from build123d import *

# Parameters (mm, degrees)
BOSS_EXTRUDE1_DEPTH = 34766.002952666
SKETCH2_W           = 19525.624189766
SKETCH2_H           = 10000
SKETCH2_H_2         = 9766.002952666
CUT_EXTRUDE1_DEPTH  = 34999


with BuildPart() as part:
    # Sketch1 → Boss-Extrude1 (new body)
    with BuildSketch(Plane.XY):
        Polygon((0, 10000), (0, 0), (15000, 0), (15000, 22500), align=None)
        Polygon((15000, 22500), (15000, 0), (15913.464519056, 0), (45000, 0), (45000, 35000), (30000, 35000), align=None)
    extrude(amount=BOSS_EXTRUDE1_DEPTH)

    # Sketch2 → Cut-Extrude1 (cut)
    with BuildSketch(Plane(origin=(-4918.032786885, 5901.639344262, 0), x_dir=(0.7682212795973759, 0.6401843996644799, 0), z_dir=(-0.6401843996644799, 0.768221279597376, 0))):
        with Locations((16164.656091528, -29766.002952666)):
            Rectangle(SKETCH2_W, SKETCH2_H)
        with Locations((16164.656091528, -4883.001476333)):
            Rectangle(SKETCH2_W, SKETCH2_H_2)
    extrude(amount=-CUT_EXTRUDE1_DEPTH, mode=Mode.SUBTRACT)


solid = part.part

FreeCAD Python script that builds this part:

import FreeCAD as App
import Part
import Sketcher


def add_polygon(sketch, points):
    """Adds a closed chain of lines whose ends are joined by coincident constraints."""
    first, n = sketch.GeometryCount, len(points)
    for a, b in zip(points, points[1:] + points[:1]):
        sketch.addGeometry(Part.LineSegment(App.Vector(*a, 0), App.Vector(*b, 0)), False)
    for i in range(n):
        sketch.addConstraint(Sketcher.Constraint("Coincident", first + i, 2, first + (i + 1) % n, 1))

doc = App.newDocument("Part")
body = doc.addObject("PartDesign::Body", "Body")

sketch1 = body.newObject("Sketcher::SketchObject", "Sketch")
sketch1.AttachmentSupport = (doc.getObject("XY_Plane"), [""])
sketch1.MapMode = "FlatFace"
add_polygon(sketch1, [(0, 10000), (0, 0), (45000, 0), (45000, 35000), (30000, 35000)])
sketch1.addConstraint([
    Sketcher.Constraint("Vertical", 0),
    Sketcher.Constraint("Horizontal", 1),
    Sketcher.Constraint("Vertical", 2),
    Sketcher.Constraint("Horizontal", 3),
    Sketcher.Constraint("Coincident", 0, 2, -1, 1),
    Sketcher.Constraint("DistanceX", 1, 1, 1, 2, 45000.0),
    Sketcher.Constraint("DistanceX", 3, 2, 3, 1, 15000.0),
    Sketcher.Constraint("DistanceY", 0, 2, 0, 1, 10000.0),
    Sketcher.Constraint("DistanceY", 2, 1, 2, 2, 35000.0),
])
pad1 = body.newObject("PartDesign::Pad", "Pad")
pad1.Profile = sketch1
pad1.Length = 34766.002953

sketch2 = body.newObject("Sketcher::SketchObject", "Sketch001")
sketch2.Placement = App.Placement(App.Vector(-4918.032787, 5901.639344, 0), App.Rotation(App.Vector(0.76822128, 0.6401844, 0), App.Vector(0, 0, -1.000000001), App.Vector(-0.6401844, 0.76822128, 0), "ZXY"))
add_polygon(sketch2, [(6402, -24766), (6402, -34766), (25927, -34766), (25927, -24766)])
add_polygon(sketch2, [(6402, 0), (6402, -9766), (25927, -9766), (25927, 0)])
sketch2.addConstraint([
    Sketcher.Constraint("Vertical", 0),
    Sketcher.Constraint("Horizontal", 1),
    Sketcher.Constraint("Vertical", 2),
    Sketcher.Constraint("Horizontal", 3),
    Sketcher.Constraint("Vertical", 4),
    Sketcher.Constraint("Horizontal", 5),
    Sketcher.Constraint("Vertical", 6),
    Sketcher.Constraint("Horizontal", 7),
    Sketcher.Constraint("PointOnObject", 6, 2, -1),
    Sketcher.Constraint("Vertical", 3, 2, 4, 2),
    Sketcher.Constraint("Vertical", 2, 2, 5, 2),
    Sketcher.Constraint("DistanceX", 1, 1, 1, 2, 19525.62421),
    Sketcher.Constraint("DistanceY", 0, 2, 0, 1, 10000.000021),
    Sketcher.Constraint("DistanceY", 4, 2, 4, 1, 9766.002973),
    Sketcher.Constraint("DistanceY", 3, 2, 4, 2, 15000.000031),
    Sketcher.Constraint("DistanceX", -1, 1, 0, 2, 6401.844003),
])
pocket1 = body.newObject("PartDesign::Pocket", "Pocket")
pocket1.Profile = sketch2
pocket1.Length = 34999

doc.recompute()
